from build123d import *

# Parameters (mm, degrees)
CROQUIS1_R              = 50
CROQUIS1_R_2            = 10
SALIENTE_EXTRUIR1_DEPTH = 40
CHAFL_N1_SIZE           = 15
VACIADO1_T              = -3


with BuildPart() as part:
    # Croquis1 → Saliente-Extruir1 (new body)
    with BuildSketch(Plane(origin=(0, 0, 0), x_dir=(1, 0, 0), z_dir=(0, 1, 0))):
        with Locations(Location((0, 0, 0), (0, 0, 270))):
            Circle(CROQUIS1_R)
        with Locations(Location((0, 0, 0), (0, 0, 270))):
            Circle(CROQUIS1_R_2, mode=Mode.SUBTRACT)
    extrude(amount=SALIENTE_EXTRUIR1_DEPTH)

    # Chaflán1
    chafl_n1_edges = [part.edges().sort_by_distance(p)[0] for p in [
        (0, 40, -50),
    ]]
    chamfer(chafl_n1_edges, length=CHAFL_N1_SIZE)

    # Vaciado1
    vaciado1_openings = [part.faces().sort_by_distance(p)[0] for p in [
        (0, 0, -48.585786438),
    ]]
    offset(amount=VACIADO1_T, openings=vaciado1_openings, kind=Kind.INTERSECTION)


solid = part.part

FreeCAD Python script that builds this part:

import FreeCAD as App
import Part
import Sketcher

V = App.Vector
Q = App.Units.Quantity


def edges_at(feature, points):
    """Names of the edges that pass closest to the given points."""
    edges = feature.Shape.Edges
    near = lambda p: min(range(len(edges)), key=lambda i: edges[i].distToShape(Part.Vertex(*p))[0])
    return sorted({f"Edge{near(p) + 1}" for p in points})


def faces_at(feature, points):
    """Names of the faces that lie closest to the given points."""
    faces = feature.Shape.Faces
    near = lambda p: min(range(len(faces)), key=lambda i: faces[i].distToShape(Part.Vertex(*p))[0])
    return sorted({f"Face{near(p) + 1}" for p in points})

doc = App.newDocument("Part")
body = doc.addObject("PartDesign::Body", "Body")

# Sketch on XZ plane
sketch1 = doc.addObject("Sketcher::SketchObject", "Sketch")
body.addObject(sketch1)
sketch1.AttachmentSupport = (doc.XZ_Plane, [""])
sketch1.MapMode = "FlatFace"
sketch1.addGeometry([
    Part.Circle(V(0, 0, 0), V(0, 0, 1), 50),
    Part.Circle(V(0, 0, 0), V(0, 0, 1), 10),
], False)
sketch1.addConstraint([
    Sketcher.Constraint("Coincident", 0, 3, -1, 1),
    Sketcher.Constraint("Coincident", 1, 3, -1, 1),
    Sketcher.Constraint("Diameter", 0, Q("100 mm")),
    Sketcher.Constraint("Diameter", 1, Q("20 mm")),
])
pad1 = doc.addObject("PartDesign::Pad", "Pad")
body.addObject(pad1)
pad1.Profile = sketch1
pad1.Length = 40
pad1.Reversed = True
doc.recompute()

chamfer = doc.addObject("PartDesign::Chamfer", "Chamfer")
body.addObject(chamfer)
chamfer.Base = (pad1, edges_at(pad1, [(0, 40, -50)]))
chamfer.Size = 15
doc.recompute()

thickness = doc.addObject("PartDesign::Thickness", "Thickness")
body.addObject(thickness)
thickness.Base = (chamfer, faces_at(chamfer, [(-20, 0, -20)]))
thickness.Value = 3
thickness.Reversed = True
thickness.Join = "Intersection"

doc.recompute()
